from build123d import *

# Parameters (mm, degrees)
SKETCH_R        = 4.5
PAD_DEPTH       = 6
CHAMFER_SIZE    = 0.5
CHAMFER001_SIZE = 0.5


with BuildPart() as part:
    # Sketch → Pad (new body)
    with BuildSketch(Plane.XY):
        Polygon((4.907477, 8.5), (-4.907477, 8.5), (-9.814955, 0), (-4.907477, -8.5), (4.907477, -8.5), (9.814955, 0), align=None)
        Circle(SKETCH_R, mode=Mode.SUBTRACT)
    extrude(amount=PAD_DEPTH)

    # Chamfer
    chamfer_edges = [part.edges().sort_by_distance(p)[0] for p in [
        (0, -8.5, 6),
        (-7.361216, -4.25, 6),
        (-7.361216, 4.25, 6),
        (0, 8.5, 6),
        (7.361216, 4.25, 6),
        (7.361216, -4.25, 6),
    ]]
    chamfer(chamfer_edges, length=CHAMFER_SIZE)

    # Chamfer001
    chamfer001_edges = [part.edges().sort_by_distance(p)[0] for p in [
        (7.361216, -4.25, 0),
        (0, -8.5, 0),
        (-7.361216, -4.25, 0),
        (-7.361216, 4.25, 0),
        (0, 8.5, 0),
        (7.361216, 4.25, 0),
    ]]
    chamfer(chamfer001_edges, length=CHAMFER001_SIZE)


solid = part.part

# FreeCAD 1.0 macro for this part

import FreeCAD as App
import Part
import Sketcher
from FreeCAD import Vector
Q = App.Units.Quantity


def edges_at(feature, points):
    """Names of the edges that pass closest to the given points."""
    edges = feature.Shape.Edges
    near = lambda p: min(range(len(edges)), key=lambda i: edges[i].distToShape(Part.Vertex(*p))[0])
    return sorted({f"Edge{near(p) + 1}" for p in points})


def add_polygon(sketch, points):
    """Adds a closed chain of lines whose ends are joined by coincident constraints."""
    first, n = sketch.GeometryCount, len(points)
    for a, b in zip(points, points[1:] + points[:1]):
        sketch.addGeometry(Part.LineSegment(App.Vector(*a, 0), App.Vector(*b, 0)), False)
    for i in range(n):
        sketch.addConstraint(Sketcher.Constraint("Coincident", first + i, 2, first + (i + 1) % n, 1))

doc = App.newDocument("Part")
body = doc.addObject("PartDesign::Body", "Body")

sketch1 = doc.addObject("Sketcher::SketchObject", "Sketch")
body.addObject(sketch1)
sketch1.AttachmentSupport = (doc.XY_Plane, [""])
sketch1.MapMode = "FlatFace"
add_polygon(sketch1, [(4.907477, 8.5), (-4.907477, 8.5), (-9.814955, 0), (-4.907477, -8.5), (4.907477, -8.5), (9.814955, 0)])
sketch1.addGeometry(Part.Circle(Vector(0, 0, 0), Vector(0, 0, 1), 4.5), False)
sketch1.addConstraint(Sketcher.Constraint("Horizontal", 0))
sketch1.addConstraint(Sketcher.Constraint("Horizontal", 3))
sketch1.addConstraint(Sketcher.Constraint("Coincident", 6, 3, -1, 1))
sketch1.addConstraint(Sketcher.Constraint("Symmetric", 0, 2, 3, 2, -1, 1))
sketch1.addConstraint(Sketcher.Constraint("Symmetric", 1, 2, 4, 2, -1, 1))
sketch1.addConstraint(Sketcher.Constraint("PointOnObject", 1, 2, -1))
sketch1.addConstraint(Sketcher.Constraint("Parallel", 2, 5))
sketch1.addConstraint(Sketcher.Constraint("Vertical", 0, 2, 2, 2))
sketch1.addConstraint(Sketcher.Constraint("Diameter", 6, Q("9 mm")))
sketch1.addConstraint(Sketcher.Constraint("Angle", 1, Q("-120.000004 deg")))
sketch1.addConstraint(Sketcher.Constraint("DistanceY", 2, 2, 0, 2, Q("17 mm")))
sketch1.addConstraint(Sketcher.Constraint("DistanceX", 0, 2, 0, 1, Q("9.814954 mm")))
pad1 = doc.addObject("PartDesign::Pad", "Pad")
body.addObject(pad1)
pad1.Profile = sketch1
pad1.Length = 6
doc.recompute()

chamfer = doc.addObject("PartDesign::Chamfer", "Chamfer")
body.addObject(chamfer)
chamfer.Base = (pad1, edges_at(pad1, [
    (0, -8.5, 6),
    (-7.361, -4.25, 6),
    (-7.361, 4.25, 6),
    (0, 8.5, 6),
    (7.361, 4.25, 6),
    (7.361, -4.25, 6),
]))
chamfer.Size = 0.5
doc.recompute()

chamfer2 = doc.addObject("PartDesign::Chamfer", "Chamfer001")
body.addObject(chamfer2)
chamfer2.Base = (chamfer, edges_at(chamfer, [
    (7.361, -4.25, 0),
    (0, -8.5, 0),
    (-7.361, -4.25, 0),
    (-7.361, 4.25, 0),
    (0, 8.5, 0),
    (7.361, 4.25, 0),
]))
chamfer2.Size = 0.5

doc.recompute()
